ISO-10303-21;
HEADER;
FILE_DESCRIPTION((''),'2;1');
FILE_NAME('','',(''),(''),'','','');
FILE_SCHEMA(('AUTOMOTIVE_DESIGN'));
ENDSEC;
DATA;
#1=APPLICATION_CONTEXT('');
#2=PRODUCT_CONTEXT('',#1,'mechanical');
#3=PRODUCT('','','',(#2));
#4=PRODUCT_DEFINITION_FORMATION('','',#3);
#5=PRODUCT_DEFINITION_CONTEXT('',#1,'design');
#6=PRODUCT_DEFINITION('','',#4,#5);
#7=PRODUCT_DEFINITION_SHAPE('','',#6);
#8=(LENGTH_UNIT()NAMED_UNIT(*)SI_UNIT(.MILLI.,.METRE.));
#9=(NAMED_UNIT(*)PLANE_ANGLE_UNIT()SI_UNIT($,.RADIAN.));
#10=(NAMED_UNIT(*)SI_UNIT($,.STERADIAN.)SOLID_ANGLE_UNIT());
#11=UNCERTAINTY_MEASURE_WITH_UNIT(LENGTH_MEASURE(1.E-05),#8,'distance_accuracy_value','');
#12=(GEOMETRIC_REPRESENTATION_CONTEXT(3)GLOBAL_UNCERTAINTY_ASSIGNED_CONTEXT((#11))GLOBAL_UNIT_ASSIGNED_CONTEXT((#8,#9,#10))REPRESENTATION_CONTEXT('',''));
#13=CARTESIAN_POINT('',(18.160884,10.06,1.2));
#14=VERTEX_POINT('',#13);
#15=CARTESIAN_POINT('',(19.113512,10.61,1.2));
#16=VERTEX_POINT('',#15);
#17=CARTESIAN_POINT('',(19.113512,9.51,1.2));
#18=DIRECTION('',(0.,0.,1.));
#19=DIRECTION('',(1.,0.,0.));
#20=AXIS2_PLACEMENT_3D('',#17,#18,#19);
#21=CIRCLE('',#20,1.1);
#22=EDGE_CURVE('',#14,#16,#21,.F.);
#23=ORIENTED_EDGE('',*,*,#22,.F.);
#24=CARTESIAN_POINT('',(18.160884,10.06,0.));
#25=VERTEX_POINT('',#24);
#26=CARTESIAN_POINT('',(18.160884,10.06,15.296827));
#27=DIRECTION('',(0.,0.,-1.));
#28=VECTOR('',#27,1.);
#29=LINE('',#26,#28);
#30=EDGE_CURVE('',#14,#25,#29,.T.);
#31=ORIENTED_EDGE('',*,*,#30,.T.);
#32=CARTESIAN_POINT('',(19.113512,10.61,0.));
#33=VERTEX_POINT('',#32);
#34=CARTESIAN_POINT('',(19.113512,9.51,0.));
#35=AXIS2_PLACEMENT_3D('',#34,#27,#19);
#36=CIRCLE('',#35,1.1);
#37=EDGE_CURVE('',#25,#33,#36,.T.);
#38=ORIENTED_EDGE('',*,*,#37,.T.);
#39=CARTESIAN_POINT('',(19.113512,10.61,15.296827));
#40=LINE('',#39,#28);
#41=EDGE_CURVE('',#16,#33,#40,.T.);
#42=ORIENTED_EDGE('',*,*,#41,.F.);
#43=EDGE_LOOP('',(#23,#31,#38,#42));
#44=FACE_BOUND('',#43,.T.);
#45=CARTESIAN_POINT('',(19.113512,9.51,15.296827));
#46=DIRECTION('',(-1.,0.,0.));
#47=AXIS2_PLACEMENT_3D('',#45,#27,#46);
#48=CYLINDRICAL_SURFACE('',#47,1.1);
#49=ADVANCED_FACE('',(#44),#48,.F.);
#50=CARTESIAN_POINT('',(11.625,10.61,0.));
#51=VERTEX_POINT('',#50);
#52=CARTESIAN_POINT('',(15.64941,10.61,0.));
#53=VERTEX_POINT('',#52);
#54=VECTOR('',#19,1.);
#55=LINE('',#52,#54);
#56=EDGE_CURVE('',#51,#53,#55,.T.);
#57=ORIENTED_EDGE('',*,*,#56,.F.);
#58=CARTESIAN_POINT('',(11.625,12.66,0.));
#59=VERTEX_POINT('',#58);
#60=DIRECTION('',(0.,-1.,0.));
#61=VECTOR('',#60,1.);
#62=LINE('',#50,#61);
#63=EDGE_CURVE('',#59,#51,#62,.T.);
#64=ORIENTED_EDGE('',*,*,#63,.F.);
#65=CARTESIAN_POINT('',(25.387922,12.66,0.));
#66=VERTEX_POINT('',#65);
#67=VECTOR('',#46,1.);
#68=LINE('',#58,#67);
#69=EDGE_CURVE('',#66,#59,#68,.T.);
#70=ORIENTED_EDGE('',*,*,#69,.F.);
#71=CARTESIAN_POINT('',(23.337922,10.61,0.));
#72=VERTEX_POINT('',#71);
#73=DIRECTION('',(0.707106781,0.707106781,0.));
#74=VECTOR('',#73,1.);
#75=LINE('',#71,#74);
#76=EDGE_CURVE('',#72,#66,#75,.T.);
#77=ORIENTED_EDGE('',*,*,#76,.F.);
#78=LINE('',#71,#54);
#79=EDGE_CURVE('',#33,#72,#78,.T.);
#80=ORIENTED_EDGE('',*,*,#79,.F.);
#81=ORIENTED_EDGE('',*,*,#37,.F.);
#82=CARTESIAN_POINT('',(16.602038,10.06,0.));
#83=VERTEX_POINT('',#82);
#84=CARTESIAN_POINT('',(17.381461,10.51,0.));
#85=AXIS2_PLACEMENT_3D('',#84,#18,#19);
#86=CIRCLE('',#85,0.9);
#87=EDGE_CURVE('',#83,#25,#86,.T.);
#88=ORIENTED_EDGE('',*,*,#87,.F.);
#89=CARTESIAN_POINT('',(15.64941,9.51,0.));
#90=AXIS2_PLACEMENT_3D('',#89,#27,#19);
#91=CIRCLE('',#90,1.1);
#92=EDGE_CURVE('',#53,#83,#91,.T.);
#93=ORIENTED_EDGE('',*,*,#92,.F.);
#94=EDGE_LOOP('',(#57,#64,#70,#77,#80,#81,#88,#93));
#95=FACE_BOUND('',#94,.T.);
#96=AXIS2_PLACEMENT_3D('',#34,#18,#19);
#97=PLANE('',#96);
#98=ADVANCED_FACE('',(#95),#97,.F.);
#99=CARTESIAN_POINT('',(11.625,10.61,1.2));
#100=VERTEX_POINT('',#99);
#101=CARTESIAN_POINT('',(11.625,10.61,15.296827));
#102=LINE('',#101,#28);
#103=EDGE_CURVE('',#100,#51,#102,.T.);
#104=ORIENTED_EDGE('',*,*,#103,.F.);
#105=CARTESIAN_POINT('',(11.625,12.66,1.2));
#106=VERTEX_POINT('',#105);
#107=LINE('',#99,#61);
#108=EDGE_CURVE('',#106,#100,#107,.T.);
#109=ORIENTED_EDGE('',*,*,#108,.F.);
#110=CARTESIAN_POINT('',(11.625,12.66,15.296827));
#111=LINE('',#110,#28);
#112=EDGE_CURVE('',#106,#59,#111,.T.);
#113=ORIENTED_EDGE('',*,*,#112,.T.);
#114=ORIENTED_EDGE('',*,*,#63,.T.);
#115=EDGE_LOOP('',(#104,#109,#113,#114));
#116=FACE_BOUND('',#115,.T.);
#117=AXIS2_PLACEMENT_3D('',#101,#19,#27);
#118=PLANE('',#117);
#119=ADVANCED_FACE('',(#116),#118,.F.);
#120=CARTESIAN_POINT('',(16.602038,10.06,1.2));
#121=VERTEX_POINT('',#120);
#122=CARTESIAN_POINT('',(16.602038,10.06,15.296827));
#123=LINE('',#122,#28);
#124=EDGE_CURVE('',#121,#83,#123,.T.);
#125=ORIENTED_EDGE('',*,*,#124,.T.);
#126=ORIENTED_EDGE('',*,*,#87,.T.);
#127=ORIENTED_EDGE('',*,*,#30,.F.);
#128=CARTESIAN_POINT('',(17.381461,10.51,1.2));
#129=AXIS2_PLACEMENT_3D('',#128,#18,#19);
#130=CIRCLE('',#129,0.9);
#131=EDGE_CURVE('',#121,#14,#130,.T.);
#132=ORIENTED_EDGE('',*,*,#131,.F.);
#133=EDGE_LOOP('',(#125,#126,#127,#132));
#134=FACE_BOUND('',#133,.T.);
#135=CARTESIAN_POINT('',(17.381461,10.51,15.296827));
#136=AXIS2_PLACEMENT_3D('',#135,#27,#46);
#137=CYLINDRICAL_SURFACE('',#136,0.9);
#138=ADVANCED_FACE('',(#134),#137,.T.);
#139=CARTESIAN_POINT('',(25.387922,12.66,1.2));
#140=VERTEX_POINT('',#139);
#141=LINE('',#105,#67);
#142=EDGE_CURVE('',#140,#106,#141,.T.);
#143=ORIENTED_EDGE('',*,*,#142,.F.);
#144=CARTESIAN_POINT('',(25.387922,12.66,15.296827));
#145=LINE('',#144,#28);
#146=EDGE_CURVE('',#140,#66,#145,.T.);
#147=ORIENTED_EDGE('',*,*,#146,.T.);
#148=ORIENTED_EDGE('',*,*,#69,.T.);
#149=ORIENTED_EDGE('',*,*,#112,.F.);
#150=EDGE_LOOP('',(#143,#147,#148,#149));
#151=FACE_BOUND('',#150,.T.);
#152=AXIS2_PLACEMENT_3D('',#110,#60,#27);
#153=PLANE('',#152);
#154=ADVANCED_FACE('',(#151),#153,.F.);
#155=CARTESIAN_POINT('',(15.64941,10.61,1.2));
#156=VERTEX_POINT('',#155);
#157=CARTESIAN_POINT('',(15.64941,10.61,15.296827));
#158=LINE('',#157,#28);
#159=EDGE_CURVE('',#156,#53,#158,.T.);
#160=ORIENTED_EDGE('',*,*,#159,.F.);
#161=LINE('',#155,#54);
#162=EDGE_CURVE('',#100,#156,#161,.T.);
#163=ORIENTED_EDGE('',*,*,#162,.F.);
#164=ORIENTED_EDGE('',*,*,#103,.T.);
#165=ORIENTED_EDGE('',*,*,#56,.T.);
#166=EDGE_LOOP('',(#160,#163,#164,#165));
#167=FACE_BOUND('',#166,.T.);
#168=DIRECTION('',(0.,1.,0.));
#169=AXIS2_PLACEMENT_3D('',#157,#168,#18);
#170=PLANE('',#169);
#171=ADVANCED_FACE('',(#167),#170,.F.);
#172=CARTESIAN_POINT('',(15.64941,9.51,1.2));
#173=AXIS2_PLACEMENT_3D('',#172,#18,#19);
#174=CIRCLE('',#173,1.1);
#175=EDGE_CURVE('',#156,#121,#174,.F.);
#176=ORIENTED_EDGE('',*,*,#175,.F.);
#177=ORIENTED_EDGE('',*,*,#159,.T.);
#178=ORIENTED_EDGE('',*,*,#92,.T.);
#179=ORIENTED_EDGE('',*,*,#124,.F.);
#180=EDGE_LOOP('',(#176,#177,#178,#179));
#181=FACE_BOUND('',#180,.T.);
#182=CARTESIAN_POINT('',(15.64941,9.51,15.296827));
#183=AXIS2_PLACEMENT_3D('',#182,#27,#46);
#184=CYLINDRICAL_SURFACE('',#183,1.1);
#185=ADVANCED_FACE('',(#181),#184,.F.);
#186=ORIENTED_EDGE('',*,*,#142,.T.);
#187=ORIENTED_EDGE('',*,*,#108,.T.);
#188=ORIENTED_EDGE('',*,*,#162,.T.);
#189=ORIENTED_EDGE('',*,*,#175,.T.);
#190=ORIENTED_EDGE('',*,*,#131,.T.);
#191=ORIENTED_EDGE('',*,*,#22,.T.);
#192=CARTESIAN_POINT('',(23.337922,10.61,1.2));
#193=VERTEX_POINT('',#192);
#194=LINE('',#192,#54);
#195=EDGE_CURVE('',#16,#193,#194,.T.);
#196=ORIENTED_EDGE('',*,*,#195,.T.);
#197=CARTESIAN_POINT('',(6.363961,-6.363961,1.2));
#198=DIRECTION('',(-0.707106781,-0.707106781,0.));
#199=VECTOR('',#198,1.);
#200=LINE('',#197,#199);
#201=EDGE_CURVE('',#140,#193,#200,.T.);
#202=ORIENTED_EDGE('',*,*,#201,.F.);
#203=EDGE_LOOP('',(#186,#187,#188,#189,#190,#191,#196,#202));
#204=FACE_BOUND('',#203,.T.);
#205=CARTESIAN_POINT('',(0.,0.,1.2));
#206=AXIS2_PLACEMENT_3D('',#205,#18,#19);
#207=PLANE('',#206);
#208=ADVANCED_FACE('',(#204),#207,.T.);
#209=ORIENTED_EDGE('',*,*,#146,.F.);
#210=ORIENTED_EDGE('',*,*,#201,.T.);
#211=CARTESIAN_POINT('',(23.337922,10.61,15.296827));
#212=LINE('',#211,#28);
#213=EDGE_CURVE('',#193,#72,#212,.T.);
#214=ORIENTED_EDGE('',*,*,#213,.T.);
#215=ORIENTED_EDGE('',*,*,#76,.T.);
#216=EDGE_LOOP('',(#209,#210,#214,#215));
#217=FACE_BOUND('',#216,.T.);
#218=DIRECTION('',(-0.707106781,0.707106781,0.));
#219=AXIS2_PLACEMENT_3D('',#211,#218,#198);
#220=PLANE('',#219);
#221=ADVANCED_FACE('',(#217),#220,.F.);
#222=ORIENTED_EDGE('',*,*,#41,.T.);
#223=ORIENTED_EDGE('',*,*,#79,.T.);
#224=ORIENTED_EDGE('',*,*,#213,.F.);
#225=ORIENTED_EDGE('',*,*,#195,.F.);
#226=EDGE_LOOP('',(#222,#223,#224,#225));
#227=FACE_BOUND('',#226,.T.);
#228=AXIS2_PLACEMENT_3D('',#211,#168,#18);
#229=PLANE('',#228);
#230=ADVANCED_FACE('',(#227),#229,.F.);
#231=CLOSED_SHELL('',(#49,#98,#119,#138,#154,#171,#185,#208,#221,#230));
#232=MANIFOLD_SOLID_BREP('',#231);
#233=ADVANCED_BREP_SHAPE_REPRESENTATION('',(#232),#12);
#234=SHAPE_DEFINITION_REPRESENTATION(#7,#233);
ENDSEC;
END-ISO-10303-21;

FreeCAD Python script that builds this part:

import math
import FreeCAD as App
import Part
import Sketcher

V = App.Vector
Q = App.Units.Quantity

doc = App.newDocument("Part")
body = doc.addObject("PartDesign::Body", "Body")

# Sketch on XY plane
sketch1 = body.newObject("Sketcher::SketchObject", "Sketch")
sketch1.AttachmentSupport = (doc.getObject("XY_Plane"), [""])
sketch1.MapMode = "FlatFace"
sketch1.addGeometry(Part.LineSegment(V(23.3, 10.6, 0), V(25.4, 12.7, 0)), False)
sketch1.addGeometry(Part.LineSegment(V(25.4, 12.7, 0), V(11.6, 12.7, 0)), False)
sketch1.addGeometry(Part.LineSegment(V(11.6, 12.7, 0), V(11.6, 10.6, 0)), False)
sketch1.addGeometry(Part.LineSegment(V(11.6, 10.6, 0), V(15.6, 10.6, 0)), False)
sketch1.addGeometry(Part.ArcOfCircle(Part.Circle(V(15.6, 9.5, 0), V(0, 0, 1), 1.1), math.radians(30), math.radians(90)), False)
sketch1.addGeometry(Part.ArcOfCircle(Part.Circle(V(17.4, 10.5, 0), V(0, 0, 1), 0.9), math.radians(-150), math.radians(-30)), False)
sketch1.addGeometry(Part.ArcOfCircle(Part.Circle(V(19.1, 9.5, 0), V(0, 0, 1), 1.1), math.radians(90), math.radians(150)), False)
sketch1.addGeometry(Part.LineSegment(V(19.1, 10.6, 0), V(23.3, 10.6, 0)), False)
sketch1.addConstraint(Sketcher.Constraint("Coincident", 0, 2, 1, 1))
sketch1.addConstraint(Sketcher.Constraint("Coincident", 1, 2, 2, 1))
sketch1.addConstraint(Sketcher.Constraint("Coincident", 2, 2, 3, 1))
sketch1.addConstraint(Sketcher.Constraint("Tangent", 3, 2, 4, 2))
sketch1.addConstraint(Sketcher.Constraint("Tangent", 4, 1, 5, 1))
sketch1.addConstraint(Sketcher.Constraint("Tangent", 5, 2, 6, 2))
sketch1.addConstraint(Sketcher.Constraint("Tangent", 6, 1, 7, 1))
sketch1.addConstraint(Sketcher.Constraint("Coincident", 7, 2, 0, 1))
sketch1.addConstraint(Sketcher.Constraint("Horizontal", 1))
sketch1.addConstraint(Sketcher.Constraint("Vertical", 2))
sketch1.addConstraint(Sketcher.Constraint("Horizontal", 3))
sketch1.addConstraint(Sketcher.Constraint("Horizontal", 7))
sketch1.addConstraint(Sketcher.Constraint("Equal", 4, 6))
sketch1.addConstraint(Sketcher.Constraint("Horizontal", 4, 3, 6, 3))
sketch1.addConstraint(Sketcher.Constraint("Radius", 4, 1.1))
sketch1.addConstraint(Sketcher.Constraint("Radius", 5, 0.9))
sketch1.addConstraint(Sketcher.Constraint("Angle", 0, Q("45 deg")))
sketch1.addConstraint(Sketcher.Constraint("DistanceY", 4, 3, 5, 3, 1.0))
sketch1.addConstraint(Sketcher.Constraint("DistanceY", 2, 2, 2, 1, 2.05))
sketch1.addConstraint(Sketcher.Constraint("DistanceY", -1, 1, 4, 3, 9.51))
sketch1.addConstraint(Sketcher.Constraint("DistanceX", -1, 1, 1, 2, 11.625))
sketch1.addConstraint(Sketcher.Constraint("DistanceX", 3, 1, 3, 2, 4.02441))
sketch1.addConstraint(Sketcher.Constraint("DistanceX", 7, 1, 7, 2, 4.22441))
pad1 = body.newObject("PartDesign::Pad", "Pad")
pad1.Profile = sketch1
pad1.Length = 1.2

doc.recompute()
